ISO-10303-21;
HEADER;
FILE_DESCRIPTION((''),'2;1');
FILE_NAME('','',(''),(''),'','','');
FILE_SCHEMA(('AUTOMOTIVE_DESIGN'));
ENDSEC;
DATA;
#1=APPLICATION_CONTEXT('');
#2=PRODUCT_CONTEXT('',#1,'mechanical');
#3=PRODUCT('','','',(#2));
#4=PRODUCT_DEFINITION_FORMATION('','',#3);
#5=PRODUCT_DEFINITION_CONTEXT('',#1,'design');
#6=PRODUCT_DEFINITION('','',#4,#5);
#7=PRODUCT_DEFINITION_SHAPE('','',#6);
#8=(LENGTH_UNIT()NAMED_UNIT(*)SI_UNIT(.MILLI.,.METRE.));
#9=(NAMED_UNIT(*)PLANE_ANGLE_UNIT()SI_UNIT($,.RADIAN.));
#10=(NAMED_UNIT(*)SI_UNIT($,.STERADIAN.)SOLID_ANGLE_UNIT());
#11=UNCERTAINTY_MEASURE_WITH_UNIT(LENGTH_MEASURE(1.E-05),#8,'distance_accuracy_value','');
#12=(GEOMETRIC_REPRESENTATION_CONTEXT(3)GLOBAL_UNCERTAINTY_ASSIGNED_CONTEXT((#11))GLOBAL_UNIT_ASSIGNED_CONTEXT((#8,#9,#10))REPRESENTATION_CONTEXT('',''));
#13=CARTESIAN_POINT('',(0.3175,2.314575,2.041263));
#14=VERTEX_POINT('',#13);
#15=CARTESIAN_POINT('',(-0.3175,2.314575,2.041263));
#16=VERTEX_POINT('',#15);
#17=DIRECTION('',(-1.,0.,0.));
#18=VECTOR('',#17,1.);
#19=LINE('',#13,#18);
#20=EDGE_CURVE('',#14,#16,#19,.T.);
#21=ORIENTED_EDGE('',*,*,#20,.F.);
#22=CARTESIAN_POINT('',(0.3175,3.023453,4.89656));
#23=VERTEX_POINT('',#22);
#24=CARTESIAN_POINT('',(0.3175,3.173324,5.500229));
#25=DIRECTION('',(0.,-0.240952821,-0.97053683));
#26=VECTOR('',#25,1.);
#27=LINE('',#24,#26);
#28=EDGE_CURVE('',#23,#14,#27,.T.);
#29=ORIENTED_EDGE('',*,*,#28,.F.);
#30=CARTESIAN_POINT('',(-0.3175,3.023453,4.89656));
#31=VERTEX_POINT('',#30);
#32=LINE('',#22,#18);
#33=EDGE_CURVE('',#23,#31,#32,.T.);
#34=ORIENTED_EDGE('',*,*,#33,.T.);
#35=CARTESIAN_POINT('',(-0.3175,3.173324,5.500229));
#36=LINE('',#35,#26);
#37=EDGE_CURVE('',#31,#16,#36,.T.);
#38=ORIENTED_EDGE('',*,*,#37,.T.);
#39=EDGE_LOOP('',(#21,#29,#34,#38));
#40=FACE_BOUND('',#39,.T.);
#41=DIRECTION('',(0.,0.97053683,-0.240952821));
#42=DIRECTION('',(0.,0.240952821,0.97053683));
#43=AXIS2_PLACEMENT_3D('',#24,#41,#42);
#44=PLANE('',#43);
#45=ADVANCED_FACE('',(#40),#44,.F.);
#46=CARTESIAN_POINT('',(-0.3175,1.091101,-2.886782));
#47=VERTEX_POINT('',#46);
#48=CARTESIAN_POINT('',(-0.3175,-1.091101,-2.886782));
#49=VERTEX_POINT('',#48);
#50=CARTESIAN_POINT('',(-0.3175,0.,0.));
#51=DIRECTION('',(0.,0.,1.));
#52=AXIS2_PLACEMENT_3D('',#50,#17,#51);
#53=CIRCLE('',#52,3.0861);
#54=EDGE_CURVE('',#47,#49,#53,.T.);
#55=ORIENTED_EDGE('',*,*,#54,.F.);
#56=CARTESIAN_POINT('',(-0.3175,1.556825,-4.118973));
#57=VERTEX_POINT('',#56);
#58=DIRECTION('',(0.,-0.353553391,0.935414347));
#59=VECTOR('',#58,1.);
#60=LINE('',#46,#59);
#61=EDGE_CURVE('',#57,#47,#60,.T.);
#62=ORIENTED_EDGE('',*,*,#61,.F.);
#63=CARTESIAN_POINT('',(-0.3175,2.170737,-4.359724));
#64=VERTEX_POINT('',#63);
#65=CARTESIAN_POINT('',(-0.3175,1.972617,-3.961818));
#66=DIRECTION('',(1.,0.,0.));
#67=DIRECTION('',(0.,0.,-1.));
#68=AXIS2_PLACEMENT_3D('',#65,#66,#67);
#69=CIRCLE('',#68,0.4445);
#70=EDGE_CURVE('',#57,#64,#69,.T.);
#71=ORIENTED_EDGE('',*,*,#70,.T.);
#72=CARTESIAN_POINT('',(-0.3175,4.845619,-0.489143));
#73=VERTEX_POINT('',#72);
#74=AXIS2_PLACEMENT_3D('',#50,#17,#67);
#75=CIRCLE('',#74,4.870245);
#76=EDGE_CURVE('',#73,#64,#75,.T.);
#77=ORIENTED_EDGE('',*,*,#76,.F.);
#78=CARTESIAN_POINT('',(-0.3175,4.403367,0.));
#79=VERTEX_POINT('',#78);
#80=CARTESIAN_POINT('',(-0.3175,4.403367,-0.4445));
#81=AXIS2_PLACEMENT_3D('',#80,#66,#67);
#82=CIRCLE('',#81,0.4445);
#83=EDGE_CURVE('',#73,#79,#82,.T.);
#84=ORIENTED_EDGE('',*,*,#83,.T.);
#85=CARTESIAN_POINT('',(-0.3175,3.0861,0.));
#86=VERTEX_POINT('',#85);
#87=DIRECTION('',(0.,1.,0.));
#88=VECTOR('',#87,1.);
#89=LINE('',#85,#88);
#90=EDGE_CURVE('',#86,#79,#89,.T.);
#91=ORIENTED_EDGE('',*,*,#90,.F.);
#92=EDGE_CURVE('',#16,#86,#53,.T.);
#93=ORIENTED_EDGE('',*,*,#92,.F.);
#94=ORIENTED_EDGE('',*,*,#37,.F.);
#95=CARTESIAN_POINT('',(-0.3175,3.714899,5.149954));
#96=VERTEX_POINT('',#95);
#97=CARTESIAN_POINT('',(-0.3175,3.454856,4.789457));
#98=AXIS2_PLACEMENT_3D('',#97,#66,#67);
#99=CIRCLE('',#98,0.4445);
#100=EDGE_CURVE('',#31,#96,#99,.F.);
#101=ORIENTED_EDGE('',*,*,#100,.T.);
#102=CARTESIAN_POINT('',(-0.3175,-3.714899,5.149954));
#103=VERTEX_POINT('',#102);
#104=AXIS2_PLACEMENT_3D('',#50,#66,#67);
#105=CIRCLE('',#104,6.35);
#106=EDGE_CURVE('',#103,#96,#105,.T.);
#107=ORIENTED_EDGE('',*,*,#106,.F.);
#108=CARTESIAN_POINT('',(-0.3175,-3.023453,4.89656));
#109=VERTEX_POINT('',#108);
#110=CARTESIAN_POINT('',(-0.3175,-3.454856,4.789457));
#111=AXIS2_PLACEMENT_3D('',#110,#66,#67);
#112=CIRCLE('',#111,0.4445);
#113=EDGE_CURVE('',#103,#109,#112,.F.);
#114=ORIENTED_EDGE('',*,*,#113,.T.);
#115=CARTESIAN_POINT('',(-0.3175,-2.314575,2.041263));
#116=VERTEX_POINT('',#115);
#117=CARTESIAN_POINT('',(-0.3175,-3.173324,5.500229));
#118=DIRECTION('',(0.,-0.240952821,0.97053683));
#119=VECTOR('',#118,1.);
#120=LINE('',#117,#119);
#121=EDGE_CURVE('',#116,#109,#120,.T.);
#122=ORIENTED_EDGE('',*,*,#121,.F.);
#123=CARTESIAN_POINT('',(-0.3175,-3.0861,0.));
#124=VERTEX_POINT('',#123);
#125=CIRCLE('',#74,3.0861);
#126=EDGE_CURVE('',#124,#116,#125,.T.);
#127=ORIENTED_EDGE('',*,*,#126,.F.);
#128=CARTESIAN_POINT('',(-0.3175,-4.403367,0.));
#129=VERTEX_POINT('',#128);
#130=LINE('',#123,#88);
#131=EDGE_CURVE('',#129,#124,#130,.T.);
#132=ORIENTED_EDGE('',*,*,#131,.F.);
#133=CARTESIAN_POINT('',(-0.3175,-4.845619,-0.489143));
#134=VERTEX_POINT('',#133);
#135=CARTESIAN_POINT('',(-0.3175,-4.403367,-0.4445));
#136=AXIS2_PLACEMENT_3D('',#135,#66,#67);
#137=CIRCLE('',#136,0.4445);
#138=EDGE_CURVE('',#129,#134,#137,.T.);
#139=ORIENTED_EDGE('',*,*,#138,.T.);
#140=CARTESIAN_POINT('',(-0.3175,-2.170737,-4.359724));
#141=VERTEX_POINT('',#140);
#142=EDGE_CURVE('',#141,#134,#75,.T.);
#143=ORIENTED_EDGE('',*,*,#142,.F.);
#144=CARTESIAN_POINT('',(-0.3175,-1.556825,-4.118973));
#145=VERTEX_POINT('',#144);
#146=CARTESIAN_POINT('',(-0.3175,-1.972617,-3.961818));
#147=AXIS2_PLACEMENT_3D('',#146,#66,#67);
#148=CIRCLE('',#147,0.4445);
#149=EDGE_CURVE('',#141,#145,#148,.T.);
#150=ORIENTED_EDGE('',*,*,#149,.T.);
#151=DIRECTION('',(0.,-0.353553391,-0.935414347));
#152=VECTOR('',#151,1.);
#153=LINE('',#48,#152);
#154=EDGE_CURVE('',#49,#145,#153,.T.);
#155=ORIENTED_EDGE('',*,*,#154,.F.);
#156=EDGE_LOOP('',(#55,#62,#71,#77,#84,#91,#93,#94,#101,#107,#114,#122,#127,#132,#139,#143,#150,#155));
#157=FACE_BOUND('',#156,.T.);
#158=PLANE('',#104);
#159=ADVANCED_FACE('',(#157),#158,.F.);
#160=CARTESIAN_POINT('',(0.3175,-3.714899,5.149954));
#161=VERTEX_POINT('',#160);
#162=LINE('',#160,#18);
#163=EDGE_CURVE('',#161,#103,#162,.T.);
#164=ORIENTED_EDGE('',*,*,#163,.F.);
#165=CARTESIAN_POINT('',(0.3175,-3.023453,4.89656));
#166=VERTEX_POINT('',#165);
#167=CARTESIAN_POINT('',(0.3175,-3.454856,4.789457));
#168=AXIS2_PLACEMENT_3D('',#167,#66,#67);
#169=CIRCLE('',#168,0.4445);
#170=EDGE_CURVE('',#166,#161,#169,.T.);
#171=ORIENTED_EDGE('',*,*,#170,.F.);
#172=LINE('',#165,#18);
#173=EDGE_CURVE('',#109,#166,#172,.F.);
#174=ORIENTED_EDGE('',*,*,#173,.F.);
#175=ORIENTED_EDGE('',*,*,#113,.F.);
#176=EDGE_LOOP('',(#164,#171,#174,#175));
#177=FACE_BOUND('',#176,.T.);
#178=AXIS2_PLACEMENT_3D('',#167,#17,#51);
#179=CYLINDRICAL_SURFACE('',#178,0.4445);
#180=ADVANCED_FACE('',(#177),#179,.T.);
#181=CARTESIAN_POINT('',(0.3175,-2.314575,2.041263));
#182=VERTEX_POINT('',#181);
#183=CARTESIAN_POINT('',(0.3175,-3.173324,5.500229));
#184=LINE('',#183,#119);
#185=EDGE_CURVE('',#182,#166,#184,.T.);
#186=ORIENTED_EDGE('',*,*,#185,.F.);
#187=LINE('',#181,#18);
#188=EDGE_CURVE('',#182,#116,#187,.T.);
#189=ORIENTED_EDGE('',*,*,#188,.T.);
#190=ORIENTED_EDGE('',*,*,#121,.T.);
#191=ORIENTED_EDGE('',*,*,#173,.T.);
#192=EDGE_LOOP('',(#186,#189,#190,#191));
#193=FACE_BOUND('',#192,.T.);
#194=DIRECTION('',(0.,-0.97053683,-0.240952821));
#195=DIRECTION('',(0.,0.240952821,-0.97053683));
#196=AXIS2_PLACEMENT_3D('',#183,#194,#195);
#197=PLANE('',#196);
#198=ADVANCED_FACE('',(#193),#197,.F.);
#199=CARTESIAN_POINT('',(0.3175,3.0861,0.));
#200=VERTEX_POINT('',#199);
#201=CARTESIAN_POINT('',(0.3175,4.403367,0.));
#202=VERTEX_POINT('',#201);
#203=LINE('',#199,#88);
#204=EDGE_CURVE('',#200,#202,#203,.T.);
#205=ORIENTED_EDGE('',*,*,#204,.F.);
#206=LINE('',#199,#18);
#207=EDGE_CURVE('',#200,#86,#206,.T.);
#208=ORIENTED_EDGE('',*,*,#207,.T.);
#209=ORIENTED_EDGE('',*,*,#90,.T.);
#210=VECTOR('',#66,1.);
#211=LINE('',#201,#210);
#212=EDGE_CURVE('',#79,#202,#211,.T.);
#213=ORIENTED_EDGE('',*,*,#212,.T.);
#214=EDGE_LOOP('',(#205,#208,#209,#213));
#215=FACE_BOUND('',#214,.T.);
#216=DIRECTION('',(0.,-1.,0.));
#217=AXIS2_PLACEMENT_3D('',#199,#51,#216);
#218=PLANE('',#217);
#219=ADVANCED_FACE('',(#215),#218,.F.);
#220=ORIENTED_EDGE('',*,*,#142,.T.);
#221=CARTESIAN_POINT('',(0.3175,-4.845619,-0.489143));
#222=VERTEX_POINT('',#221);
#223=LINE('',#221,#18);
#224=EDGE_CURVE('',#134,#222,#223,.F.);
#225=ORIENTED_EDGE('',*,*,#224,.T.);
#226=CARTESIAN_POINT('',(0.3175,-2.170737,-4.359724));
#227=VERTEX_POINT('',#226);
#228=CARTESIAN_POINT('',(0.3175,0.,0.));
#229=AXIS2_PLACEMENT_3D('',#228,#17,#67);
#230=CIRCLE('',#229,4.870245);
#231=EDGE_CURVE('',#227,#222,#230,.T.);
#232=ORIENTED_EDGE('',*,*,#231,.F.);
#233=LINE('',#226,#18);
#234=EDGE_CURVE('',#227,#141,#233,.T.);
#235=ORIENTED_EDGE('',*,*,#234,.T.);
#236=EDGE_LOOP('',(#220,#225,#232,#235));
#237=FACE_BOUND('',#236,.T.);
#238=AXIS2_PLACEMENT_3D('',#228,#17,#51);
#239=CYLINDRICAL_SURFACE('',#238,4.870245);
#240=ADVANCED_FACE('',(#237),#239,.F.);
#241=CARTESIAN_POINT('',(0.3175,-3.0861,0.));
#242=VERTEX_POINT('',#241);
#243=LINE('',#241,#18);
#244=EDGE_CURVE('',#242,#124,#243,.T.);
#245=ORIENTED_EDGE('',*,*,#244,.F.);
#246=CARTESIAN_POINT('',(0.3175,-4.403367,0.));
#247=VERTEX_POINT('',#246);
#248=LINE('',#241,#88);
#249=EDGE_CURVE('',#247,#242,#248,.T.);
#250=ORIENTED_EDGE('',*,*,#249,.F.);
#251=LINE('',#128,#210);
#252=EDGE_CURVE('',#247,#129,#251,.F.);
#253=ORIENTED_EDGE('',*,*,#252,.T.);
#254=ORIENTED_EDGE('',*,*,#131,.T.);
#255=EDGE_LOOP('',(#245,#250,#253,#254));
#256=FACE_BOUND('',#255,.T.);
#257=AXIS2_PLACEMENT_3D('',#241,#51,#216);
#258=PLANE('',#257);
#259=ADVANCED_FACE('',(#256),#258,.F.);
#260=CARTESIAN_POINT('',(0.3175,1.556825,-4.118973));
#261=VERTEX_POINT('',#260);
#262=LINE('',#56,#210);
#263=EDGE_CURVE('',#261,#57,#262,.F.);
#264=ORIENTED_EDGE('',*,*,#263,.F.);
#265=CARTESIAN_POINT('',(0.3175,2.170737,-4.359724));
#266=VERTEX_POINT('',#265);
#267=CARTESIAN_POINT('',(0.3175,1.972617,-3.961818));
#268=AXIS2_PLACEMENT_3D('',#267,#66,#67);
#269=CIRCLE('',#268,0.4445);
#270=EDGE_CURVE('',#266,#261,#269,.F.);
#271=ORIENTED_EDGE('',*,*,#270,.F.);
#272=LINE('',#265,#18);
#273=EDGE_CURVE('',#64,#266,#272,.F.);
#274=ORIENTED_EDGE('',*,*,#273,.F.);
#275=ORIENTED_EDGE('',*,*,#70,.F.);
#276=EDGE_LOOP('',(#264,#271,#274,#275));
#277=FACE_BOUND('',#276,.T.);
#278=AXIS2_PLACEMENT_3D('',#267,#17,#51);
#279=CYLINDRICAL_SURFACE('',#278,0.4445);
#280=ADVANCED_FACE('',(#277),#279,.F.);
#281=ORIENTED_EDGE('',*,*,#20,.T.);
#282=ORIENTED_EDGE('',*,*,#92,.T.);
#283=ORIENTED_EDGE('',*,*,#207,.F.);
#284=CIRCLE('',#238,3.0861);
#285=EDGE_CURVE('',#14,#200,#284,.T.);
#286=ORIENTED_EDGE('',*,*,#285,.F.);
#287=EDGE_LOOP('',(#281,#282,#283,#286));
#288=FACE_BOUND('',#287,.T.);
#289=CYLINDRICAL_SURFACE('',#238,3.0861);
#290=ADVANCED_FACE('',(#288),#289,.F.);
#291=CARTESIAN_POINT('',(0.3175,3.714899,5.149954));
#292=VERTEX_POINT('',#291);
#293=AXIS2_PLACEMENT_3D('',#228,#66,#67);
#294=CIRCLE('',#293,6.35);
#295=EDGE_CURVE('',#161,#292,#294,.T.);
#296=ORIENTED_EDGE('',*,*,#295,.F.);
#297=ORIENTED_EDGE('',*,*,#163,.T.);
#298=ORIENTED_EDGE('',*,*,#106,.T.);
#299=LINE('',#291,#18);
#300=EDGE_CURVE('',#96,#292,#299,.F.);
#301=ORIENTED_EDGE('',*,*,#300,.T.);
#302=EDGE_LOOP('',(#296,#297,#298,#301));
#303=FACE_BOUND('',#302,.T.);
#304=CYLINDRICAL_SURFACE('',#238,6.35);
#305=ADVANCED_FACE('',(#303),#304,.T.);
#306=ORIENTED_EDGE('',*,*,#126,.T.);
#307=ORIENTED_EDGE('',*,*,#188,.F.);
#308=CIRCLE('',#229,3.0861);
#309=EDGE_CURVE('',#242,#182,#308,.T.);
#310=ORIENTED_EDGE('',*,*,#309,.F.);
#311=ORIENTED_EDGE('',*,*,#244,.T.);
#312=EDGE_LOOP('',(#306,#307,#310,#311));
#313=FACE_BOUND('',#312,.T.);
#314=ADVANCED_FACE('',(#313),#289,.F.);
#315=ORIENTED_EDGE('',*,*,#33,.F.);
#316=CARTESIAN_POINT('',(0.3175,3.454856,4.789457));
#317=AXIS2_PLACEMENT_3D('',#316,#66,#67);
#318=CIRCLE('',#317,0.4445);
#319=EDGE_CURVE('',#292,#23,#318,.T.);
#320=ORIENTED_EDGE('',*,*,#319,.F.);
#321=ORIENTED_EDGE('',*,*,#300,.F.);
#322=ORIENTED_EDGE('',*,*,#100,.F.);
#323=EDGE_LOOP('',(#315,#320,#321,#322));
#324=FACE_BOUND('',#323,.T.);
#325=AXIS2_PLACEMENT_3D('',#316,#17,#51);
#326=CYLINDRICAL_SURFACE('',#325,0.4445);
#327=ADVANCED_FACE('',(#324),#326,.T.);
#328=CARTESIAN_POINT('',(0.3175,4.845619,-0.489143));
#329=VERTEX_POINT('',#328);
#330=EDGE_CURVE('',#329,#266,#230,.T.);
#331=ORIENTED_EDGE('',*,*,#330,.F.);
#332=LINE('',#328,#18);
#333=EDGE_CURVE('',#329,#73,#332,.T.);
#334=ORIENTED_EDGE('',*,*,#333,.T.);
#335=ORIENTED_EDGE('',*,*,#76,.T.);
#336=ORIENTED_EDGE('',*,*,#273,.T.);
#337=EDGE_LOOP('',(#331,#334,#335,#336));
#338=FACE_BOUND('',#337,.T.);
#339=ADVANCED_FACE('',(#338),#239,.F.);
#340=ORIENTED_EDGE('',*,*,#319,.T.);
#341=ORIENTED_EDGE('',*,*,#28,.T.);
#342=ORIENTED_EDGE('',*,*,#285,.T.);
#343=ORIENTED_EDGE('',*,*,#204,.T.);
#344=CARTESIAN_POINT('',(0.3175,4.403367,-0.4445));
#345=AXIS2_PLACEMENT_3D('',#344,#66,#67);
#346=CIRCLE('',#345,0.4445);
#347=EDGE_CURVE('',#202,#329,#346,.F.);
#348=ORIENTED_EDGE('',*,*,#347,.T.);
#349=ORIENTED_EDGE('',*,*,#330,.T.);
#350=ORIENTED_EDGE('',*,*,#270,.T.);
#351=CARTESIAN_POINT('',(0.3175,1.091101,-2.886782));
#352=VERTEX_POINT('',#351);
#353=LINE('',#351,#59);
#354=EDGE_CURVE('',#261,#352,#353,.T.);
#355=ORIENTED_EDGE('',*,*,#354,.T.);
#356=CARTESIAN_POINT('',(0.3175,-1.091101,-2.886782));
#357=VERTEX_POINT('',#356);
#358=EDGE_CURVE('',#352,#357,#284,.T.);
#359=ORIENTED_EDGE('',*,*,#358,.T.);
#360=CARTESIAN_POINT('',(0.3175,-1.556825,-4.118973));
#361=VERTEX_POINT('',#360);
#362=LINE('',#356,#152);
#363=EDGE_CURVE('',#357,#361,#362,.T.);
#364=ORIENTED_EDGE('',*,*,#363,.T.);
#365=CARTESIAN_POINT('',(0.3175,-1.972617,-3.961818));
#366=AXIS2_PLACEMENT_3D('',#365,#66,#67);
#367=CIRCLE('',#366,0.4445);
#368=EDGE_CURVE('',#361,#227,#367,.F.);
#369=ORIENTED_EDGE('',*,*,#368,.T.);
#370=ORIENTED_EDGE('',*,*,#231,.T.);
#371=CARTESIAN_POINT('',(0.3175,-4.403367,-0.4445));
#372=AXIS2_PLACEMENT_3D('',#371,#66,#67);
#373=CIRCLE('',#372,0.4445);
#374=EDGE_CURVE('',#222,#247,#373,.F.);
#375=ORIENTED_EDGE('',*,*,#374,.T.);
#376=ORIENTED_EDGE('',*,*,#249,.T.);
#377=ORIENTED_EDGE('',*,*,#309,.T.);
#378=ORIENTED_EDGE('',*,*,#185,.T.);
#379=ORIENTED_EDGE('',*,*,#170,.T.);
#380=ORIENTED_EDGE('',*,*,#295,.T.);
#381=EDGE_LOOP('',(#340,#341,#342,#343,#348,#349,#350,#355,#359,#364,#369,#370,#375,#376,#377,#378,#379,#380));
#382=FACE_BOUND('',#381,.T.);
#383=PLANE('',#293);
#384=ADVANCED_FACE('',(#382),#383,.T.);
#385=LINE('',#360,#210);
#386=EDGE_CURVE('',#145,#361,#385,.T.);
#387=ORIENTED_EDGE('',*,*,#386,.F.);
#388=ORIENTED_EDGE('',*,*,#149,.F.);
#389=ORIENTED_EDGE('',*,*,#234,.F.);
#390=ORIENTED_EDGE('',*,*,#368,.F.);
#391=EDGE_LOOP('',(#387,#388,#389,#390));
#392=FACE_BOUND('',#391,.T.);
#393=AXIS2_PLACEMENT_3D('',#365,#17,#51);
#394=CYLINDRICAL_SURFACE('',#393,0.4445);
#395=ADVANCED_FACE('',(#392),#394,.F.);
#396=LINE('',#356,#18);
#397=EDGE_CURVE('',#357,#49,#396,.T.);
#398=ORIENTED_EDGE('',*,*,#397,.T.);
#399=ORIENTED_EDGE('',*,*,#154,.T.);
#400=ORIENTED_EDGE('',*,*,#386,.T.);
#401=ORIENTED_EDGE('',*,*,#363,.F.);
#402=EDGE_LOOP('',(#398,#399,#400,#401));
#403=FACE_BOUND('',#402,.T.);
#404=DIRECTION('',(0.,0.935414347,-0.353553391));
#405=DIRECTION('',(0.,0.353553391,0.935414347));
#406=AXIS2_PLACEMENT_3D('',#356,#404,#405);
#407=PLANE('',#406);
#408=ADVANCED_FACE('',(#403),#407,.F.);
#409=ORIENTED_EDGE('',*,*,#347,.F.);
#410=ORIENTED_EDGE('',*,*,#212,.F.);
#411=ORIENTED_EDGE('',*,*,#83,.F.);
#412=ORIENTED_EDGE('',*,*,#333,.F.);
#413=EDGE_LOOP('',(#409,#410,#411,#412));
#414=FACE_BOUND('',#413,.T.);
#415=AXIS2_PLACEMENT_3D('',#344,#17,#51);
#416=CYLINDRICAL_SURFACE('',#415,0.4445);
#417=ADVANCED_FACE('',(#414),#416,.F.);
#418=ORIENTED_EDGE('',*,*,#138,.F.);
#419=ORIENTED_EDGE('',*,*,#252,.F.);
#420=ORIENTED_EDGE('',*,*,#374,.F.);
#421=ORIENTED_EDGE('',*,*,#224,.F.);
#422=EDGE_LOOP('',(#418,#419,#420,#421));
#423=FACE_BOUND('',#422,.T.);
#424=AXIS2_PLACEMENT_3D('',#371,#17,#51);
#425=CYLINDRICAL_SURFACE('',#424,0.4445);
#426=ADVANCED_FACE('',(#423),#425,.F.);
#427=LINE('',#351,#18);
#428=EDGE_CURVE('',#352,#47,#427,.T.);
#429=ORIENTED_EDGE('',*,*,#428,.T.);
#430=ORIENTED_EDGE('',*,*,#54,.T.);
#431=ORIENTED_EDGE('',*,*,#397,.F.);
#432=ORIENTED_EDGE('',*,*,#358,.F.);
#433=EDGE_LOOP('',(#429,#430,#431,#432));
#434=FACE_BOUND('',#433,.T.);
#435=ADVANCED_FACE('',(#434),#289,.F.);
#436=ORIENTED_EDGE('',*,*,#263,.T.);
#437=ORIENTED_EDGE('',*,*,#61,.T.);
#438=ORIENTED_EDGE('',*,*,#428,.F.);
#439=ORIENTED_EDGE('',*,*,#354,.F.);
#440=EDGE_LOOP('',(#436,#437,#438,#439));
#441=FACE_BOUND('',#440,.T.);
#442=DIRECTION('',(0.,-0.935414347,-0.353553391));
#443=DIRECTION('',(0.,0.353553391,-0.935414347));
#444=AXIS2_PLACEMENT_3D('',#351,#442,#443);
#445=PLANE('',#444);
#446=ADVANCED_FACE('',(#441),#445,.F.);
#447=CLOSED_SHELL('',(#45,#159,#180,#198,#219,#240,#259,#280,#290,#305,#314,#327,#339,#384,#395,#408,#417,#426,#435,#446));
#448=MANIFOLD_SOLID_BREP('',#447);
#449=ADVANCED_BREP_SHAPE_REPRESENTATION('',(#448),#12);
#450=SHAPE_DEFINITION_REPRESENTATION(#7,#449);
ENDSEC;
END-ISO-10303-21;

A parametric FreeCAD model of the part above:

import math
import FreeCAD as App
import Part
import Sketcher

V = App.Vector
Q = App.Units.Quantity


def edges_at(feature, points):
    """Names of the edges that pass closest to the given points."""
    edges = feature.Shape.Edges
    near = lambda p: min(range(len(edges)), key=lambda i: edges[i].distToShape(Part.Vertex(*p))[0])
    return sorted({f"Edge{near(p) + 1}" for p in points})

doc = App.newDocument("Part")
body = doc.addObject("PartDesign::Body", "Body")

# Sketch on YZ plane
sketch1 = body.newObject("Sketcher::SketchObject", "Sketch")
sketch1.AttachmentSupport = (doc.getObject("YZ_Plane"), [""])
sketch1.MapMode = "FlatFace"
sketch1.addGeometry(Part.LineSegment(V(-2.3, 2, 0), V(-3.2, 5.5, 0)), False)
sketch1.addGeometry(Part.ArcOfCircle(Part.Circle(V(0, 0, 0), V(0, 0, 1), 6.3), math.radians(120), math.radians(420)), False)
sketch1.addGeometry(Part.LineSegment(V(3.2, 5.5, 0), V(2.3, 2, 0)), False)
sketch1.addGeometry(Part.ArcOfCircle(Part.Circle(V(0, 0, 0), V(0, 0, 1), 3.1), math.radians(0), math.radians(41)), False)
sketch1.addGeometry(Part.LineSegment(V(3.1, 0, 0), V(4.9, 0, 0)), False)
sketch1.addGeometry(Part.ArcOfCircle(Part.Circle(V(0, 0, 0), V(0, 0, 1), 4.9), math.radians(-69), math.radians(0)), False)
sketch1.addGeometry(Part.LineSegment(V(1.7, -4.6, 0), V(1.1, -2.9, 0)), False)
sketch1.addGeometry(Part.ArcOfCircle(Part.Circle(V(0, 0, 0), V(0, 0, 1), 3.1), math.radians(-111), math.radians(-69)), False)
sketch1.addGeometry(Part.LineSegment(V(-1.1, -2.9, 0), V(-1.7, -4.6, 0)), False)
sketch1.addGeometry(Part.ArcOfCircle(Part.Circle(V(0, 0, 0), V(0, 0, 1), 4.9), math.radians(180), math.radians(249)), False)
sketch1.addGeometry(Part.LineSegment(V(-4.9, 0, 0), V(-3.1, 0, 0)), False)
sketch1.addGeometry(Part.ArcOfCircle(Part.Circle(V(0, 0, 0), V(0, 0, 1), 3.1), math.radians(139), math.radians(180)), False)
sketch1.addConstraint(Sketcher.Constraint("Coincident", 0, 2, 1, 1))
sketch1.addConstraint(Sketcher.Constraint("Coincident", 1, 2, 2, 1))
sketch1.addConstraint(Sketcher.Constraint("Coincident", 2, 2, 3, 2))
sketch1.addConstraint(Sketcher.Constraint("Coincident", 3, 1, 4, 1))
sketch1.addConstraint(Sketcher.Constraint("Coincident", 4, 2, 5, 2))
sketch1.addConstraint(Sketcher.Constraint("Coincident", 5, 1, 6, 1))
sketch1.addConstraint(Sketcher.Constraint("Coincident", 6, 2, 7, 2))
sketch1.addConstraint(Sketcher.Constraint("Coincident", 7, 1, 8, 1))
sketch1.addConstraint(Sketcher.Constraint("Coincident", 8, 2, 9, 2))
sketch1.addConstraint(Sketcher.Constraint("Coincident", 9, 1, 10, 1))
sketch1.addConstraint(Sketcher.Constraint("Coincident", 10, 2, 11, 2))
sketch1.addConstraint(Sketcher.Constraint("Coincident", 11, 1, 0, 1))
sketch1.addConstraint(Sketcher.Constraint("Horizontal", 4))
sketch1.addConstraint(Sketcher.Constraint("Horizontal", 10))
sketch1.addConstraint(Sketcher.Constraint("Coincident", 1, 3, -1, 1))
sketch1.addConstraint(Sketcher.Constraint("Coincident", 3, 3, -1, 1))
sketch1.addConstraint(Sketcher.Constraint("Coincident", 5, 3, -1, 1))
sketch1.addConstraint(Sketcher.Constraint("Coincident", 7, 3, -1, 1))
sketch1.addConstraint(Sketcher.Constraint("Coincident", 9, 3, -1, 1))
sketch1.addConstraint(Sketcher.Constraint("Coincident", 11, 3, -1, 1))
sketch1.addConstraint(Sketcher.Constraint("Equal", 3, 7))
sketch1.addConstraint(Sketcher.Constraint("Equal", 5, 9))
sketch1.addConstraint(Sketcher.Constraint("Equal", 7, 11))
sketch1.addConstraint(Sketcher.Constraint("PointOnObject", 3, 1, -1))
sketch1.addConstraint(Sketcher.Constraint("PointOnObject", 9, 1, -1))
sketch1.addConstraint(Sketcher.Constraint("Horizontal", 0, 2, 1, 2))
sketch1.addConstraint(Sketcher.Constraint("Horizontal", 6, 2, 7, 1))
sketch1.addConstraint(Sketcher.Constraint("Horizontal", 5, 1, 8, 2))
sketch1.addConstraint(Sketcher.Constraint("Horizontal", 2, 2, 11, 1))
sketch1.addConstraint(Sketcher.Constraint("Radius", 1, Q("0.25 in")))
sketch1.addConstraint(Sketcher.Constraint("Radius", 3, Q("0.1215 in")))
sketch1.addConstraint(Sketcher.Constraint("Radius", 5, Q("4.870245 mm")))
sketch1.addConstraint(Sketcher.Constraint("DistanceX", -1, 1, 6, 2, Q("1.091101 mm")))
sketch1.addConstraint(Sketcher.Constraint("Distance", 0, Q("3.563971 mm")))
sketch1.addConstraint(Sketcher.Constraint("DistanceY", -1, 1, 0, 2, Q("5.500229 mm")))
sketch1.addConstraint(Sketcher.Constraint("DistanceX", -1, 1, 5, 1, Q("1.721892 mm")))
pad1 = body.newObject("PartDesign::Pad", "Pad")
pad1.Profile = sketch1
pad1.Length = Q("0.025 in")
pad1.Midplane = True
doc.recompute()

fillet = body.newObject("PartDesign::Fillet", "Fillet")
fillet.Base = (pad1, edges_at(pad1, [
    (0, -3.173, 5.5),
    (0, -4.87, 0),
    (0, -1.722, -4.556),
    (0, 1.722, -4.556),
    (0, 4.87, 0),
    (0, 3.173, 5.5),
]))
fillet.Radius = Q("0.0175 in")

doc.recompute()
